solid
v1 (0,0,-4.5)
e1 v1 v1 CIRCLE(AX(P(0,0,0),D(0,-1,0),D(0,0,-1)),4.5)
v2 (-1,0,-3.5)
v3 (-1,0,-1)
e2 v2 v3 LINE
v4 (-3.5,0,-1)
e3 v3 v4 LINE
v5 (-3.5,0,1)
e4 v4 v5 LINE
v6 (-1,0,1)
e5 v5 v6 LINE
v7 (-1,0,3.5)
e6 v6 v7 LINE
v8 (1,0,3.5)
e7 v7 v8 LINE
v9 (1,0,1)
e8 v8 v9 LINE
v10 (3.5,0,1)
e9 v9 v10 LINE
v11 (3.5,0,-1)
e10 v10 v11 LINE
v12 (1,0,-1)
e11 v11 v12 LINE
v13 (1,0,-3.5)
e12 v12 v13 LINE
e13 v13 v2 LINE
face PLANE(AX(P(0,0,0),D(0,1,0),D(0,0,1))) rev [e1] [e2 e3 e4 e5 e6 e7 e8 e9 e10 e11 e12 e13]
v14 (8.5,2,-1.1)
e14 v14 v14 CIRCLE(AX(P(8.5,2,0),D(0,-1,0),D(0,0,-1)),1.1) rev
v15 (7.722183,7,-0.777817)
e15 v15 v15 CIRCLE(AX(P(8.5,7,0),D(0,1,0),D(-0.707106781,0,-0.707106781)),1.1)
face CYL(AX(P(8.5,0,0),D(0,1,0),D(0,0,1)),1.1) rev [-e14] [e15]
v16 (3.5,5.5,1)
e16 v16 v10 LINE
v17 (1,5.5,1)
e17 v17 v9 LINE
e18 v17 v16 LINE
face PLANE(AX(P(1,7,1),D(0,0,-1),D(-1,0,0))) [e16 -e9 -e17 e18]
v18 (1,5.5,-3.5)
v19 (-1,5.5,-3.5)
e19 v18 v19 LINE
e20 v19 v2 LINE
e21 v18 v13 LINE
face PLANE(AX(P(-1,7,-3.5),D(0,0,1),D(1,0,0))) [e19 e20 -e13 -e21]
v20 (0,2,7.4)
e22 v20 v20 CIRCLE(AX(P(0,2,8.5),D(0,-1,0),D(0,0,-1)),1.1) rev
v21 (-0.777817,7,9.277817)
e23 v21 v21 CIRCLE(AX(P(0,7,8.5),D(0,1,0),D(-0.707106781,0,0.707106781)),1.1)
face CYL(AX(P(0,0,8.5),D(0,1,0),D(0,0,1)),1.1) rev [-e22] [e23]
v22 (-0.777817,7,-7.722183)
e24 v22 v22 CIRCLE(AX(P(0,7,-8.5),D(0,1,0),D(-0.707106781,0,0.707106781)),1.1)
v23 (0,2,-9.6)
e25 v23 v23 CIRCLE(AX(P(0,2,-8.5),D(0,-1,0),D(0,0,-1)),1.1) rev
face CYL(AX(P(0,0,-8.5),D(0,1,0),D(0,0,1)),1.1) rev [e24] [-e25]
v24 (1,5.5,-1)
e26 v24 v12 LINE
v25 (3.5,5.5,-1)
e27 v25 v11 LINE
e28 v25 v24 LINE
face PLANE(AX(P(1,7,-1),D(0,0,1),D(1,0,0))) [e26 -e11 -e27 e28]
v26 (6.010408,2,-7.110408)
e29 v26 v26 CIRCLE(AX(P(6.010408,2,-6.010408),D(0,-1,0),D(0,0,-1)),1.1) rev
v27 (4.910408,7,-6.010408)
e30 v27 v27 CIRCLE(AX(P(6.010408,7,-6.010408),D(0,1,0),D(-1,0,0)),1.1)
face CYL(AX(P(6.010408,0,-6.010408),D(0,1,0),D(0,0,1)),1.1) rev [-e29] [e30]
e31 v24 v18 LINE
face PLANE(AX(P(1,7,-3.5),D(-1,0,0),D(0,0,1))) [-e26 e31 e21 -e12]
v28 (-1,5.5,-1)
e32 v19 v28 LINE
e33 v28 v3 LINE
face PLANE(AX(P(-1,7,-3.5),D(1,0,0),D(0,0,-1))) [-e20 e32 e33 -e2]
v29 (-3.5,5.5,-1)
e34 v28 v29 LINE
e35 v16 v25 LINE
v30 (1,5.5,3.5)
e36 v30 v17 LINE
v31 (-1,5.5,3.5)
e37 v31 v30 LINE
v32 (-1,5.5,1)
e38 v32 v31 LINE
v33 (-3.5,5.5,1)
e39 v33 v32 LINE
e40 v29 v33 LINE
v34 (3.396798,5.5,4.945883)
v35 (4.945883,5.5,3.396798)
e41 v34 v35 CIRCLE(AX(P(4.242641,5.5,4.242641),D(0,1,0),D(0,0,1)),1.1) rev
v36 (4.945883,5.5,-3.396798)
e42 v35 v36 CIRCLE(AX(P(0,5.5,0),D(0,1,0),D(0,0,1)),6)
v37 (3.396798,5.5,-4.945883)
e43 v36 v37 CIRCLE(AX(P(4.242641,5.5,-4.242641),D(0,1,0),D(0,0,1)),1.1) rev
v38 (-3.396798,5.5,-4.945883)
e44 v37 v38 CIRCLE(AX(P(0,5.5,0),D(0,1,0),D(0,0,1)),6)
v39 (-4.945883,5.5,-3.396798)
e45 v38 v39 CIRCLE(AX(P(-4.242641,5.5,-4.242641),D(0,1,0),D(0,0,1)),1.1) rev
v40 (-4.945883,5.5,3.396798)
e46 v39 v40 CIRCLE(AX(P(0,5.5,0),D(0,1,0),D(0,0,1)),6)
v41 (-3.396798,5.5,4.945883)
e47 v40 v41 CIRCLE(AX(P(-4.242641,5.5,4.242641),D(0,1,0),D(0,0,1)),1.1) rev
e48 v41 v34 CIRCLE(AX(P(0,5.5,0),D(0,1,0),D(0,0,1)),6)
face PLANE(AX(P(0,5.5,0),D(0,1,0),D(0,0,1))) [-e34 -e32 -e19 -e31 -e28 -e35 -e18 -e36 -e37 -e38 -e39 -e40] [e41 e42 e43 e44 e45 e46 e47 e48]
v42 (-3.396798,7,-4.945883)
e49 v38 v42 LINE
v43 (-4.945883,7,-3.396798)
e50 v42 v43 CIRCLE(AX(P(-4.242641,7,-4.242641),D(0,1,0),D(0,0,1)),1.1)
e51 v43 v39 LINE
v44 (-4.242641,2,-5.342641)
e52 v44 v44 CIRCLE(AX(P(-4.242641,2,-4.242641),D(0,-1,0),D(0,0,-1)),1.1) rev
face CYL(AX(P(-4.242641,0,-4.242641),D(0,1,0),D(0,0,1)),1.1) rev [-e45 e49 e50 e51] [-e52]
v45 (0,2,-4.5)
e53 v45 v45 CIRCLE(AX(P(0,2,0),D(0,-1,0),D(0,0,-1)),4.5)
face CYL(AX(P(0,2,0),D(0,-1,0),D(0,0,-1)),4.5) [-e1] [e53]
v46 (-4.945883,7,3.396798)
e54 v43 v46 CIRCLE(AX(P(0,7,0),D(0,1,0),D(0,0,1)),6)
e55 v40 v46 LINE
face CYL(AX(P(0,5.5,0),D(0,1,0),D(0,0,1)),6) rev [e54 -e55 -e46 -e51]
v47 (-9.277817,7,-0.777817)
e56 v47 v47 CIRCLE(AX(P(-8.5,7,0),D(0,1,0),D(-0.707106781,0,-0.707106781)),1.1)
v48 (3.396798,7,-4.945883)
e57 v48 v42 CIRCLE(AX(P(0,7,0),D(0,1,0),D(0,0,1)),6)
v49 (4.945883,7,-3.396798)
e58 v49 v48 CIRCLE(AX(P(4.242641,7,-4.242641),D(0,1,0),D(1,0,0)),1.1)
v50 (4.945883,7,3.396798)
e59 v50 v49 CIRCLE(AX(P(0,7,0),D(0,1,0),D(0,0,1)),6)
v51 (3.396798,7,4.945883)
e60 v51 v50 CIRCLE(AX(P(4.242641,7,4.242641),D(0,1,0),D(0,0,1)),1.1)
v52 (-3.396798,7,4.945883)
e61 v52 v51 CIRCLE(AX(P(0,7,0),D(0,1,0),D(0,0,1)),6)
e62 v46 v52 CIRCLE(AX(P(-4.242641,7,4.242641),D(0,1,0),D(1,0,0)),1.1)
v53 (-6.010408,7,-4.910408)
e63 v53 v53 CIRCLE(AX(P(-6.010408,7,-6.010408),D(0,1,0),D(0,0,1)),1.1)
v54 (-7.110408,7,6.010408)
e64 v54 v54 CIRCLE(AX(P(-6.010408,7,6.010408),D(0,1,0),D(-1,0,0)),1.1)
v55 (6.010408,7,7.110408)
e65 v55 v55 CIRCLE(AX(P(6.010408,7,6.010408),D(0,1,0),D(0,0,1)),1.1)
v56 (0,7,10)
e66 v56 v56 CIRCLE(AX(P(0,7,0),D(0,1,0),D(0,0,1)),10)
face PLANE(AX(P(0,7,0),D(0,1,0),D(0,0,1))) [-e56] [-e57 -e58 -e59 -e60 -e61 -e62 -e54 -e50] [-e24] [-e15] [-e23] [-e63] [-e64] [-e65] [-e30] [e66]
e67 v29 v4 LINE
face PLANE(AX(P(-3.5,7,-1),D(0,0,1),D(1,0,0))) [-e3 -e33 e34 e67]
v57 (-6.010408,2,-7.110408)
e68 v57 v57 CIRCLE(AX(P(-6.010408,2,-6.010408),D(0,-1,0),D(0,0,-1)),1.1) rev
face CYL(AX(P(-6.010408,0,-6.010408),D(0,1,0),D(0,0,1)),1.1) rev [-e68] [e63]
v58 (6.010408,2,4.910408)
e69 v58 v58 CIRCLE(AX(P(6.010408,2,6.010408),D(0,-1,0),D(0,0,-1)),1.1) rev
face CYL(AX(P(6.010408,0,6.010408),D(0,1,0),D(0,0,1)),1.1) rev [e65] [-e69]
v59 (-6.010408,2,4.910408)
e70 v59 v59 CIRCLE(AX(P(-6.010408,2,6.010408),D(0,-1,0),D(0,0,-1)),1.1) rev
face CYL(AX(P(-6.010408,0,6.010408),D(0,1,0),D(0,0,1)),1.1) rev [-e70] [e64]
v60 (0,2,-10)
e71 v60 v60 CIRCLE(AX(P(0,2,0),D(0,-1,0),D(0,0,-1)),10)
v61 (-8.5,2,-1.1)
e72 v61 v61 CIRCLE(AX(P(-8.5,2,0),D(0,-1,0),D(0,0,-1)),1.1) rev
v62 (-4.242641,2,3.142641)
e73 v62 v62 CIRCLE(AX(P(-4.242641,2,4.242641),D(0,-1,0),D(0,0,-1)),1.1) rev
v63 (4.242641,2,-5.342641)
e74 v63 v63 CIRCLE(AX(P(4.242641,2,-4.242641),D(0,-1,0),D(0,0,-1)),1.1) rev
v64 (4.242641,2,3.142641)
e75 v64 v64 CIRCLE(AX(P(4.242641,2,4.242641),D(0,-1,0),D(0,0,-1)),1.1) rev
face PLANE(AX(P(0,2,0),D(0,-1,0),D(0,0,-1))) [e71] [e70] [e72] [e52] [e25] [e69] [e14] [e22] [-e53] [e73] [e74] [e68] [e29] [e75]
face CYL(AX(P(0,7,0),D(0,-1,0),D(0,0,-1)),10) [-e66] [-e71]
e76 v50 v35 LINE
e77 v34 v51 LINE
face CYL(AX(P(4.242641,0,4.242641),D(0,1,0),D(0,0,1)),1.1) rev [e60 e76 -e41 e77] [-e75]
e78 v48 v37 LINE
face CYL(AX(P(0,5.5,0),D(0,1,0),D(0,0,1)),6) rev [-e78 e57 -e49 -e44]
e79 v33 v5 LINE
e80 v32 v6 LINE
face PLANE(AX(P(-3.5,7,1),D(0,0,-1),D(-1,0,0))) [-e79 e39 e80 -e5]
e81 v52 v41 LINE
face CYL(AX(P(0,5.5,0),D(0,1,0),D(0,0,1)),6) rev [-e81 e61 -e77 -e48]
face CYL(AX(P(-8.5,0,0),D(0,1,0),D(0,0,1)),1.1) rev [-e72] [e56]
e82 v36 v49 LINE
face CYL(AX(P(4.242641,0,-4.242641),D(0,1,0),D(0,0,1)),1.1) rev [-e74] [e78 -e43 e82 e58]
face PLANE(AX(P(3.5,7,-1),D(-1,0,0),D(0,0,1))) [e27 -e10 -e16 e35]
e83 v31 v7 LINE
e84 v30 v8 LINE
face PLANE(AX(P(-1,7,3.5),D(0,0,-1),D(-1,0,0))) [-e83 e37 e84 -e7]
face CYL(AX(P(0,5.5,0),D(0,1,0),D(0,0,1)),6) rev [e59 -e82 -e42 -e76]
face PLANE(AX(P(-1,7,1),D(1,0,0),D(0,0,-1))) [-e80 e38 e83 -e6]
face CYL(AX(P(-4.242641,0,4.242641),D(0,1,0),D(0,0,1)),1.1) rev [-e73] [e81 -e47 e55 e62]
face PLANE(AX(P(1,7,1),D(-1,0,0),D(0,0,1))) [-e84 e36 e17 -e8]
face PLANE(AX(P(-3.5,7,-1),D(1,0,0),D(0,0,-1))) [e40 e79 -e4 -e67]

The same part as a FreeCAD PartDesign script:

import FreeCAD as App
import Part
import Sketcher

doc = App.newDocument("Part")
params = doc.addObject("Spreadsheet::Sheet", "Params")
for row, (alias, value) in enumerate([
    ("sketch1_diameter", "20 mm"),
    ("sketch1_width", "2 mm"),
    ("sketch1_width2", "2.5 mm"),
    ("pad1_length", "7 mm"),
    ("sketch2_diameter", "2.2 mm"),
    ("sketch3_diameter", "2.2 mm"),
    ("sketch4_diameter", "12 mm"),
    ("pocket3_length", "1.5 mm"),
    ("sketch5_diameter", "20 mm"),
    ("sketch5_diameter2", "9 mm"),
    ("pocket4_length", "2 mm"),
], start=1):
    params.set(f"A{row}", alias)
    params.set(f"B{row}", "=" + value)
    params.setAlias(f"B{row}", alias)

body = doc.addObject("PartDesign::Body", "Body")

sketch1 = doc.addObject("Sketcher::SketchObject", "Sketch")
body.addObject(sketch1)
sketch1.AttachmentSupport = (doc.XZ_Plane, [""])
sketch1.MapMode = "FlatFace"
sketch1.addGeometry([
    Part.Circle(App.Vector(0, 0, 0), App.Vector(0, 0, 1), 10),
    Part.LineSegment(App.Vector(1, -3.5, 0), App.Vector(1, -1, 0)),
    Part.LineSegment(App.Vector(1, -1, 0), App.Vector(3.5, -1, 0)),
    Part.LineSegment(App.Vector(3.5, -1, 0), App.Vector(3.5, 1, 0)),
    Part.LineSegment(App.Vector(3.5, 1, 0), App.Vector(1, 1, 0)),
    Part.LineSegment(App.Vector(1, 1, 0), App.Vector(1, 3.5, 0)),
    Part.LineSegment(App.Vector(1, 3.5, 0), App.Vector(-1, 3.5, 0)),
    Part.LineSegment(App.Vector(-1, 3.5, 0), App.Vector(-1, 1, 0)),
    Part.LineSegment(App.Vector(-1, 1, 0), App.Vector(-3.5, 1, 0)),
    Part.LineSegment(App.Vector(-3.5, 1, 0), App.Vector(-3.5, -1, 0)),
    Part.LineSegment(App.Vector(-3.5, -1, 0), App.Vector(-1, -1, 0)),
    Part.LineSegment(App.Vector(-1, -1, 0), App.Vector(-1, -3.5, 0)),
    Part.LineSegment(App.Vector(-1, -3.5, 0), App.Vector(1, -3.5, 0)),
], False)
sketch1.addConstraint([
    Sketcher.Constraint("Coincident", 1, 2, 2, 1),
    Sketcher.Constraint("Coincident", 2, 2, 3, 1),
    Sketcher.Constraint("Coincident", 3, 2, 4, 1),
    Sketcher.Constraint("Coincident", 4, 2, 5, 1),
    Sketcher.Constraint("Coincident", 5, 2, 6, 1),
    Sketcher.Constraint("Coincident", 6, 2, 7, 1),
    Sketcher.Constraint("Coincident", 7, 2, 8, 1),
    Sketcher.Constraint("Coincident", 8, 2, 9, 1),
    Sketcher.Constraint("Coincident", 9, 2, 10, 1),
    Sketcher.Constraint("Coincident", 10, 2, 11, 1),
    Sketcher.Constraint("Coincident", 11, 2, 12, 1),
    Sketcher.Constraint("Coincident", 12, 2, 1, 1),
    Sketcher.Constraint("Vertical", 1),
    Sketcher.Constraint("Horizontal", 2),
    Sketcher.Constraint("Vertical", 3),
    Sketcher.Constraint("Horizontal", 4),
    Sketcher.Constraint("Vertical", 5),
    Sketcher.Constraint("Horizontal", 6),
    Sketcher.Constraint("Vertical", 7),
    Sketcher.Constraint("Horizontal", 8),
    Sketcher.Constraint("Vertical", 9),
    Sketcher.Constraint("Horizontal", 10),
    Sketcher.Constraint("Vertical", 11),
    Sketcher.Constraint("Horizontal", 12),
    Sketcher.Constraint("Coincident", 0, 3, -1, 1),
    Sketcher.Constraint("Symmetric", 1, 2, 7, 2, -1, 1),
    Sketcher.Constraint("Symmetric", 3, 2, 9, 2, -1, 1),
    Sketcher.Constraint("Symmetric", 5, 2, 11, 2, -1, 1),
    Sketcher.Constraint("Symmetric", 4, 2, 7, 2, -2),
    Sketcher.Constraint("Equal", 10, 1),
    Sketcher.Constraint("Equal", 12, 3),
    Sketcher.Constraint("Diameter", 0, 20.0),
    Sketcher.Constraint("DistanceX", 6, 2, 6, 1, 2.0),
    Sketcher.Constraint("DistanceX", 2, 1, 2, 2, 2.5),
])
sketch1.setExpression("Constraints[31]", "Params.sketch1_diameter")
sketch1.setExpression("Constraints[32]", "Params.sketch1_width")
sketch1.setExpression("Constraints[33]", "Params.sketch1_width2")
pad1 = doc.addObject("PartDesign::Pad", "Pad")
body.addObject(pad1)
pad1.Profile = sketch1
pad1.setExpression("Length", "Params.pad1_length")
pad1.Reversed = True

sketch2 = doc.addObject("Sketcher::SketchObject", "Sketch001")
body.addObject(sketch2)
sketch2.AttachmentSupport = (doc.XZ_Plane, [""])
sketch2.MapMode = "FlatFace"
sketch2.AttachmentOffset = App.Placement(App.Vector(0, 0, -7), App.Rotation())
sketch2.addGeometry([
    Part.Circle(App.Vector(-6.010408, -6.010408, 0), App.Vector(0, 0, 1), 1.1),
    Part.Circle(App.Vector(6.010408, 6.010408, 0), App.Vector(0, 0, 1), 1.1),
], False)
sketch2.addConstraint([
    Sketcher.Constraint("Equal", 0, 1),
    Sketcher.Constraint("Symmetric", 0, 3, 1, 3, -1, 1),
    Sketcher.Constraint("Diameter", 0, 2.2),
    Sketcher.Constraint("DistanceX", 0, 3, -1, 1, 6.010408),
    Sketcher.Constraint("DistanceY", 0, 3, -1, 1, 6.010408),
])
sketch2.setExpression("Constraints[2]", "Params.sketch2_diameter")
pocket1 = doc.addObject("PartDesign::Pocket", "Pocket")
body.addObject(pocket1)
pocket1.Profile = sketch2
pocket1.Type = "ThroughAll"
pocket1.Reversed = True
doc.recompute()

polarpattern = doc.addObject("PartDesign::PolarPattern", "PolarPattern")
body.addObject(polarpattern)
polarpattern.Originals = [pocket1]
polarpattern.Axis = (doc.Y_Axis, [""])
polarpattern.Angle = 135
polarpattern.Occurrences = 4
polarpattern.Reversed = True
body.Tip = polarpattern

sketch3 = doc.addObject("Sketcher::SketchObject", "Sketch002")
body.addObject(sketch3)
sketch3.AttachmentSupport = (doc.XZ_Plane, [""])
sketch3.MapMode = "FlatFace"
sketch3.AttachmentOffset = App.Placement(App.Vector(0, 0, -7), App.Rotation())
sketch3.addGeometry([
    Part.Circle(App.Vector(-4.242641, -4.242641, 0), App.Vector(0, 0, 1), 1.1),
    Part.Circle(App.Vector(4.242641, 4.242641, 0), App.Vector(0, 0, 1), 1.1),
], False)
sketch3.addConstraint([
    Sketcher.Constraint("Equal", 0, 1),
    Sketcher.Constraint("Symmetric", 0, 3, 1, 3, -1, 1),
    Sketcher.Constraint("Diameter", 0, 2.2),
    Sketcher.Constraint("DistanceX", 0, 3, -1, 1, 4.242641),
    Sketcher.Constraint("DistanceY", 0, 3, -1, 1, 4.242641),
])
sketch3.setExpression("Constraints[2]", "Params.sketch3_diameter")
pocket2 = doc.addObject("PartDesign::Pocket", "Pocket001")
body.addObject(pocket2)
pocket2.Profile = sketch3
pocket2.Type = "ThroughAll"
pocket2.Reversed = True
doc.recompute()

polarpattern2 = doc.addObject("PartDesign::PolarPattern", "PolarPattern001")
body.addObject(polarpattern2)
polarpattern2.Originals = [pocket2]
polarpattern2.Axis = (doc.Y_Axis, [""])
polarpattern2.Angle = 90
polarpattern2.Occurrences = 2
body.Tip = polarpattern2

sketch4 = doc.addObject("Sketcher::SketchObject", "Sketch003")
body.addObject(sketch4)
sketch4.AttachmentSupport = (doc.XZ_Plane, [""])
sketch4.MapMode = "FlatFace"
sketch4.AttachmentOffset = App.Placement(App.Vector(0, 0, -7), App.Rotation())
sketch4.addGeometry(Part.Circle(App.Vector(0, 0, 0), App.Vector(0, 0, 1), 6), False)
sketch4.addConstraint([
    Sketcher.Constraint("Coincident", 0, 3, -1, 1),
    Sketcher.Constraint("Diameter", 0, 12.0),
])
sketch4.setExpression("Constraints[1]", "Params.sketch4_diameter")
pocket3 = doc.addObject("PartDesign::Pocket", "Pocket002")
body.addObject(pocket3)
pocket3.Profile = sketch4
pocket3.setExpression("Length", "Params.pocket3_length")
pocket3.Reversed = True

sketch5 = doc.addObject("Sketcher::SketchObject", "Sketch004")
body.addObject(sketch5)
sketch5.AttachmentSupport = (doc.XZ_Plane, [""])
sketch5.MapMode = "FlatFace"
sketch5.addGeometry([
    Part.Circle(App.Vector(0, 0, 0), App.Vector(0, 0, 1), 10),
    Part.Circle(App.Vector(0, 0, 0), App.Vector(0, 0, 1), 4.5),
], False)
sketch5.addConstraint([
    Sketcher.Constraint("Coincident", 0, 3, -1, 1),
    Sketcher.Constraint("Coincident", 1, 3, -1, 1),
    Sketcher.Constraint("Diameter", 0, 20.0),
    Sketcher.Constraint("Diameter", 1, 9.0),
])
sketch5.setExpression("Constraints[2]", "Params.sketch5_diameter")
sketch5.setExpression("Constraints[3]", "Params.sketch5_diameter2")
pocket4 = doc.addObject("PartDesign::Pocket", "Pocket003")
body.addObject(pocket4)
pocket4.Profile = sketch5
pocket4.setExpression("Length", "Params.pocket4_length")

doc.recompute()
